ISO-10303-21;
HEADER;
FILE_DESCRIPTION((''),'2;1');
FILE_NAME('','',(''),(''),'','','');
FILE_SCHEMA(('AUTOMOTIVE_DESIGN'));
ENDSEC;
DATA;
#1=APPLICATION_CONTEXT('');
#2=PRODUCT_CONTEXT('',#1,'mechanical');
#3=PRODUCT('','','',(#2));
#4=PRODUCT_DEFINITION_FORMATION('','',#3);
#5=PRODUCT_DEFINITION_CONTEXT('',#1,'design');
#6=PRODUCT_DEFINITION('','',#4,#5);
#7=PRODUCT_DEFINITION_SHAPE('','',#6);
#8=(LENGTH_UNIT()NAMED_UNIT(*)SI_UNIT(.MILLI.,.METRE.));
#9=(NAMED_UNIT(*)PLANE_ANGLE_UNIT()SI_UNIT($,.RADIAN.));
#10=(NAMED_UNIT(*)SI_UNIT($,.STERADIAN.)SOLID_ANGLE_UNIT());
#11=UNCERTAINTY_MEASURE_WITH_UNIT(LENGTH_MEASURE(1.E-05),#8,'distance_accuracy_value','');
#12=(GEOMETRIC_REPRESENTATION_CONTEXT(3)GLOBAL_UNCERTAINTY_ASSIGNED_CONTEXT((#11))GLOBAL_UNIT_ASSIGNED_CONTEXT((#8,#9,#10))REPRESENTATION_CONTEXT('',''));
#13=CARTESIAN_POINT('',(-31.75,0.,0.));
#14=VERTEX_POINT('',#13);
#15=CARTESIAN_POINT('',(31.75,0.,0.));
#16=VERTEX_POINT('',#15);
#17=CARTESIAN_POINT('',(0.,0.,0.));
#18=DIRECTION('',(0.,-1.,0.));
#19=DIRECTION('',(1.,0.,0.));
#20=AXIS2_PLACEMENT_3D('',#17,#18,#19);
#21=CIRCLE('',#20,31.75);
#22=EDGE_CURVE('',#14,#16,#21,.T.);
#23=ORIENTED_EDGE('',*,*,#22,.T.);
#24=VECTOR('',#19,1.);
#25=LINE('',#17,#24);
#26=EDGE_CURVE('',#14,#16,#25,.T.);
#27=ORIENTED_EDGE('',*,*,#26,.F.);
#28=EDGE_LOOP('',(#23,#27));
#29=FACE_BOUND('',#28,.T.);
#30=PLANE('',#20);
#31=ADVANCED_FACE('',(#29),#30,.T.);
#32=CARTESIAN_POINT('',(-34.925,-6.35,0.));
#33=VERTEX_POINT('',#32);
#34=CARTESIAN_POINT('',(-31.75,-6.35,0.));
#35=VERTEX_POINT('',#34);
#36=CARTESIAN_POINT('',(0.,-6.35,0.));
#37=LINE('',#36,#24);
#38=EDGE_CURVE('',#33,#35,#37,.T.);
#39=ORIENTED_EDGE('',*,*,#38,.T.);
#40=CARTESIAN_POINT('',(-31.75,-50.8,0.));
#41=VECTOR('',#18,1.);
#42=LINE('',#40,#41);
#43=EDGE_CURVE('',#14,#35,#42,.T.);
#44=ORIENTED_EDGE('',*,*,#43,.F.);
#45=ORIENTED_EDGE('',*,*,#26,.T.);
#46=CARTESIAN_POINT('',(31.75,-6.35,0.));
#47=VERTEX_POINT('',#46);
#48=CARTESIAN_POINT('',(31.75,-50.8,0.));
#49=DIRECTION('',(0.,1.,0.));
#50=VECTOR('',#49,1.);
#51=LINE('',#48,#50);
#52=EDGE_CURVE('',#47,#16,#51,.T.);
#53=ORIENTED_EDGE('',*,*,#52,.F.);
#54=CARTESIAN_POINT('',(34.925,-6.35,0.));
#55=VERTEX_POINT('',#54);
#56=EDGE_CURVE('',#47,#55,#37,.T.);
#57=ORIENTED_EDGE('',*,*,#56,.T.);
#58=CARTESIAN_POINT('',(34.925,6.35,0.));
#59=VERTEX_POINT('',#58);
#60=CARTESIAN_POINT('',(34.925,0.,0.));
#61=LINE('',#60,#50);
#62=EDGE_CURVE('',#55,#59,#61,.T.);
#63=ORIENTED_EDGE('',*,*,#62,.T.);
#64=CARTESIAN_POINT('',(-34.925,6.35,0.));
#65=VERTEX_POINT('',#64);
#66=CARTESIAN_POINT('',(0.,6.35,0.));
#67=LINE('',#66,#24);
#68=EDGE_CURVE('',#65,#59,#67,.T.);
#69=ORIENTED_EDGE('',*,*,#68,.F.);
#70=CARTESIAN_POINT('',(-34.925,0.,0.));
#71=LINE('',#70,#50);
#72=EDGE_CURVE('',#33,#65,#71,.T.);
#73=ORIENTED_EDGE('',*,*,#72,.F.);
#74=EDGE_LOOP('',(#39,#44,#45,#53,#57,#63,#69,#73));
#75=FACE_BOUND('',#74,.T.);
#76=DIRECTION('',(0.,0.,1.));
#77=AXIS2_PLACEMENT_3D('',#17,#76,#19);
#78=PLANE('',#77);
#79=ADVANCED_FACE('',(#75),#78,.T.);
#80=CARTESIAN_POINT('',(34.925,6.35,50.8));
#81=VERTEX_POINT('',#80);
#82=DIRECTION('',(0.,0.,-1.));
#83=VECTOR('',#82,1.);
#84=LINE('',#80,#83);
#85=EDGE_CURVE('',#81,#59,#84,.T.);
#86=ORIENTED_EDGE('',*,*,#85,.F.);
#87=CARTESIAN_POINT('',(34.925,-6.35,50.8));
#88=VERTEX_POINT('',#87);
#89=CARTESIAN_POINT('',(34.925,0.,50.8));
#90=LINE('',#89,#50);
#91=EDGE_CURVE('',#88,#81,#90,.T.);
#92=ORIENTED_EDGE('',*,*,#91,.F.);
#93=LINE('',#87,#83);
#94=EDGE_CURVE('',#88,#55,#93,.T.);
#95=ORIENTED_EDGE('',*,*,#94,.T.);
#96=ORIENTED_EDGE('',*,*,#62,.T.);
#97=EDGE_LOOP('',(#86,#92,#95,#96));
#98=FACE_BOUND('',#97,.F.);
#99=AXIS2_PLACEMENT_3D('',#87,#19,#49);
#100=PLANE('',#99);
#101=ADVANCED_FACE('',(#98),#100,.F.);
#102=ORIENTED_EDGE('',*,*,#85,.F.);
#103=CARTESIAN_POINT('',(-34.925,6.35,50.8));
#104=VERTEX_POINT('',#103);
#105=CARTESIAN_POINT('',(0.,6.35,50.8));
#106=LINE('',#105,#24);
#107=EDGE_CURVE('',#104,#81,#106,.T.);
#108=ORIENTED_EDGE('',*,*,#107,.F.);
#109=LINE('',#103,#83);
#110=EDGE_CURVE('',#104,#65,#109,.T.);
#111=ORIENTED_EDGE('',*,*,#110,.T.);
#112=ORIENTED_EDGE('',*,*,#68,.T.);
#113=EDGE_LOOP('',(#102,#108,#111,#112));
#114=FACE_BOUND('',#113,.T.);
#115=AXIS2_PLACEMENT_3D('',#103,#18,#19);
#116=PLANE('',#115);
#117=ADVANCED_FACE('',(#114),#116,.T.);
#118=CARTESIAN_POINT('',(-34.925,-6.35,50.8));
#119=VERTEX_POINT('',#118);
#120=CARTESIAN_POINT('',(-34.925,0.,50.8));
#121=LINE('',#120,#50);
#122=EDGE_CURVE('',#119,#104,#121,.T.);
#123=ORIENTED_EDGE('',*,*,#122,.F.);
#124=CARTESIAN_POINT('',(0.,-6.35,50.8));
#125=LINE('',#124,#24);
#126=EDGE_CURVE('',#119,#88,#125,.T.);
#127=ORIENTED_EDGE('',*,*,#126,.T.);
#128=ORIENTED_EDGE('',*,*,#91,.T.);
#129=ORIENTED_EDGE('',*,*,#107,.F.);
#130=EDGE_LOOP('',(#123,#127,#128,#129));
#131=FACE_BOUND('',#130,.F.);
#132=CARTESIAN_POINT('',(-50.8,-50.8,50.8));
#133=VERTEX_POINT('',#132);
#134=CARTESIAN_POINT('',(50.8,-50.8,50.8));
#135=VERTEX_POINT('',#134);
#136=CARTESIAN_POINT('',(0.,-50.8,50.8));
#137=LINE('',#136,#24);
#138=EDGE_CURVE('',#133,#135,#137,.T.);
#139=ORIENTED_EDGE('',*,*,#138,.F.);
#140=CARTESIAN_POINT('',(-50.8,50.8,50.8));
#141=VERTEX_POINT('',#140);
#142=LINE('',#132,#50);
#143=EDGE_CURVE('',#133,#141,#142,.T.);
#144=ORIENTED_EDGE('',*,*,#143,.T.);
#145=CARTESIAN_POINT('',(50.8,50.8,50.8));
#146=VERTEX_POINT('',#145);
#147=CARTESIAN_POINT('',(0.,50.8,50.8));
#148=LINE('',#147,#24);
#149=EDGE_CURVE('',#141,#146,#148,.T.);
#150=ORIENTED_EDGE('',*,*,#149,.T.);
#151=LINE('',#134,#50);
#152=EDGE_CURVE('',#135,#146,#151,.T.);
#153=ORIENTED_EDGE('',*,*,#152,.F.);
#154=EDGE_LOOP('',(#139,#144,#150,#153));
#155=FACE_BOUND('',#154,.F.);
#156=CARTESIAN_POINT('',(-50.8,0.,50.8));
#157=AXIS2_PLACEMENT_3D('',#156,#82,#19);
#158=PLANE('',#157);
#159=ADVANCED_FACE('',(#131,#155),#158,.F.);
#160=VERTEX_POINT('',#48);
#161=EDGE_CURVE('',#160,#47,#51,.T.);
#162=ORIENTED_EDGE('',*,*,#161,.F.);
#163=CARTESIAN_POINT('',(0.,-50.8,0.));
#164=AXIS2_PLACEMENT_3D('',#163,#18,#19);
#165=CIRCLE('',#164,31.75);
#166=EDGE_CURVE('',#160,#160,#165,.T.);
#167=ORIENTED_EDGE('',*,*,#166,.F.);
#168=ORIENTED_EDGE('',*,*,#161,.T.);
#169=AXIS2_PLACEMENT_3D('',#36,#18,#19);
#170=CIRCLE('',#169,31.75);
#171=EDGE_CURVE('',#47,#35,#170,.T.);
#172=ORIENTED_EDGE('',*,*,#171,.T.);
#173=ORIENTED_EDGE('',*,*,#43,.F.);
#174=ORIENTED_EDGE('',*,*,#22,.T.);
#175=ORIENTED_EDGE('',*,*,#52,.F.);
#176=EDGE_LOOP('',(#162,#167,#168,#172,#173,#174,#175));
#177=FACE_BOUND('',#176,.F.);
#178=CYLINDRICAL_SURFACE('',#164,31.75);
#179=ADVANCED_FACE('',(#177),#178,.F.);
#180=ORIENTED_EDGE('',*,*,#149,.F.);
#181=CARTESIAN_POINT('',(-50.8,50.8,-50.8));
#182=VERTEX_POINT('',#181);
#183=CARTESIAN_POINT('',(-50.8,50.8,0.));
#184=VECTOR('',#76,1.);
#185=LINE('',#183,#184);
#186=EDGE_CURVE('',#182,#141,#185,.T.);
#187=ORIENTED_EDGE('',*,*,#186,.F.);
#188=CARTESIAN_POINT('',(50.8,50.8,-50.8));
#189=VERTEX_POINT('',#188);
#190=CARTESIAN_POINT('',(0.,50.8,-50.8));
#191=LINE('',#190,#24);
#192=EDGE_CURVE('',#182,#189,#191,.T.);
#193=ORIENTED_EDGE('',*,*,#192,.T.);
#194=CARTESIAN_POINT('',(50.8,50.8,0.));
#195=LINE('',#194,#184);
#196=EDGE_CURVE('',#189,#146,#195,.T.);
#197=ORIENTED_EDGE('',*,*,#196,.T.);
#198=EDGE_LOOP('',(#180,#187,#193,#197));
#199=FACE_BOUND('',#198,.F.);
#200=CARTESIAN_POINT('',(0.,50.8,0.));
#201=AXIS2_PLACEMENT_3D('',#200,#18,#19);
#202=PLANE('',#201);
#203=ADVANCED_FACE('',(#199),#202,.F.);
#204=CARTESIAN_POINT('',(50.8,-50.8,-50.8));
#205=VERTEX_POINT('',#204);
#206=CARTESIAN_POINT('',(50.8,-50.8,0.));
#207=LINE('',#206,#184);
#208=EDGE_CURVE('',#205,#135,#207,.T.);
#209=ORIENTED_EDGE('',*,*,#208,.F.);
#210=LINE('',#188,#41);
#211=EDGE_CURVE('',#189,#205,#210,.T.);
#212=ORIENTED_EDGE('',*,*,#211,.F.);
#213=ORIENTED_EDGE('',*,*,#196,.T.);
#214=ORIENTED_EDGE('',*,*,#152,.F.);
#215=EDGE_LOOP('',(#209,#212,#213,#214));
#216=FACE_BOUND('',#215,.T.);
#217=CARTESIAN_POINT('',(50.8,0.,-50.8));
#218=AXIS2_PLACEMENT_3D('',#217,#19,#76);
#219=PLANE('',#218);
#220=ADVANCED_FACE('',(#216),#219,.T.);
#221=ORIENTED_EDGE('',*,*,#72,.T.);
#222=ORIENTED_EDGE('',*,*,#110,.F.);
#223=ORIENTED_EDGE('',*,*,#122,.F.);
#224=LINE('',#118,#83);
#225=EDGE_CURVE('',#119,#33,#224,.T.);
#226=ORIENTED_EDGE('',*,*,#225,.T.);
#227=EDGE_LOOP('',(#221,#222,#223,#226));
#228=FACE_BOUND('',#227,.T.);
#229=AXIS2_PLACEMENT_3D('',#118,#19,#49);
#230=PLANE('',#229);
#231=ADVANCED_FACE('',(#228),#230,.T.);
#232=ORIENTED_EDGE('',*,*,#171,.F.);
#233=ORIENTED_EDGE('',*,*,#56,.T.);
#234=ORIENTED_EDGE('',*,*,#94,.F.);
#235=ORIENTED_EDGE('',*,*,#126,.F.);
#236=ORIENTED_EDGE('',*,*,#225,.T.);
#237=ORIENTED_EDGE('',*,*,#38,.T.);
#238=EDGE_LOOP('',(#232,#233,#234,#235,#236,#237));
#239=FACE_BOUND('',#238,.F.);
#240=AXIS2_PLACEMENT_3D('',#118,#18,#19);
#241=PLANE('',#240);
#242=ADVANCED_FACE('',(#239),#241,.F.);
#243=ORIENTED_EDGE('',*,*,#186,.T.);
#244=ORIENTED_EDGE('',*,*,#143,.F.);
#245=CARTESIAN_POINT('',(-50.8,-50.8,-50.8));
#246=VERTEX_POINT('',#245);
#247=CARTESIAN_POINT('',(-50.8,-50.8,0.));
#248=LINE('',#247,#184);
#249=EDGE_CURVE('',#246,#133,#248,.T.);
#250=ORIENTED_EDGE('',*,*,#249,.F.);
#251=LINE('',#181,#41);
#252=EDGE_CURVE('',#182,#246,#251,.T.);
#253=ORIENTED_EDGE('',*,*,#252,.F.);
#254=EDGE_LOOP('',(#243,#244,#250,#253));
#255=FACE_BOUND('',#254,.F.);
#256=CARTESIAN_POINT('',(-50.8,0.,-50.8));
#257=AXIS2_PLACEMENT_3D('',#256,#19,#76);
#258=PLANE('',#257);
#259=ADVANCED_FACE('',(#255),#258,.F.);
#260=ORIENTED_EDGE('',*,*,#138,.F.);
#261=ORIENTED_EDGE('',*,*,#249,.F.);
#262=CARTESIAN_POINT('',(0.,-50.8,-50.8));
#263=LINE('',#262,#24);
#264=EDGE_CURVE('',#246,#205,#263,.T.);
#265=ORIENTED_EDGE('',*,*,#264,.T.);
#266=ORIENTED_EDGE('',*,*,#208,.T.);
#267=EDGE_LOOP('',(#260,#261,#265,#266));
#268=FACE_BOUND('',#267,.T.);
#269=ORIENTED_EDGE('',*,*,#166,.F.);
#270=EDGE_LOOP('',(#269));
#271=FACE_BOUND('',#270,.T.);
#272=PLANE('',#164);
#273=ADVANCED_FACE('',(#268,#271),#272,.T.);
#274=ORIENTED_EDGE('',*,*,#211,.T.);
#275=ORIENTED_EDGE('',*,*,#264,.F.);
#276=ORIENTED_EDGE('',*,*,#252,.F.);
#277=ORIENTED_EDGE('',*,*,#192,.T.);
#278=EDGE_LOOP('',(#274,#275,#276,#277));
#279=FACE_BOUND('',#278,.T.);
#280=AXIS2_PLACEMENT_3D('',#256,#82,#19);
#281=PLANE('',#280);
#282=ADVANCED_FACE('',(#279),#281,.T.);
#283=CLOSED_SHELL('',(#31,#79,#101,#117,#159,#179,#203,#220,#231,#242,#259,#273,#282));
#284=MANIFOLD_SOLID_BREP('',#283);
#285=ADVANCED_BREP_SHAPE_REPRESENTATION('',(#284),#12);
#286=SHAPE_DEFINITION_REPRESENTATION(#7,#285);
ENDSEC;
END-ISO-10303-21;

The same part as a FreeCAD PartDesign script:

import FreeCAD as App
import Part
import Sketcher

V = App.Vector
Q = App.Units.Quantity


def add_polygon(sketch, points):
    """Adds a closed chain of lines whose ends are joined by coincident constraints."""
    first, n = sketch.GeometryCount, len(points)
    for a, b in zip(points, points[1:] + points[:1]):
        sketch.addGeometry(Part.LineSegment(App.Vector(*a, 0), App.Vector(*b, 0)), False)
    for i in range(n):
        sketch.addConstraint(Sketcher.Constraint("Coincident", first + i, 2, first + (i + 1) % n, 1))

doc = App.newDocument("Part")
body = doc.addObject("PartDesign::Body", "Body")

# Sketch on XZ plane
sketch1 = body.newObject("Sketcher::SketchObject", "Sketch")
sketch1.AttachmentSupport = (doc.getObject("XZ_Plane"), [""])
sketch1.MapMode = "FlatFace"
add_polygon(sketch1, [(-51, 51), (-51, -51), (51, -51), (51, 51)])  # lines 0-3
sketch1.addConstraint(Sketcher.Constraint("Vertical", 0))
sketch1.addConstraint(Sketcher.Constraint("Horizontal", 1))
sketch1.addConstraint(Sketcher.Constraint("Vertical", 2))
sketch1.addConstraint(Sketcher.Constraint("Horizontal", 3))
sketch1.addConstraint(Sketcher.Constraint("Symmetric", 0, 2, 2, 2, -1, 1))
sketch1.addConstraint(Sketcher.Constraint("Equal", 3, 0))
sketch1.addConstraint(Sketcher.Constraint("DistanceX", 1, 1, 1, 2, Q("4 in")))
pad1 = body.newObject("PartDesign::Pad", "Pad")
pad1.Profile = sketch1
pad1.Length = Q("4 in")
pad1.Midplane = True

# Sketch on XY plane
sketch2 = body.newObject("Sketcher::SketchObject", "Sketch001")
sketch2.AttachmentSupport = (doc.getObject("XY_Plane"), [""])
sketch2.MapMode = "FlatFace"
sketch2.AttachmentOffset = App.Placement(V(0, 0, 2 * 25.4), App.Rotation())
add_polygon(sketch2, [(-35, 6), (-35, -6), (35, -6), (35, 6)])  # lines 0-3
sketch2.addConstraint(Sketcher.Constraint("Vertical", 0))
sketch2.addConstraint(Sketcher.Constraint("Horizontal", 1))
sketch2.addConstraint(Sketcher.Constraint("Vertical", 2))
sketch2.addConstraint(Sketcher.Constraint("Horizontal", 3))
sketch2.addConstraint(Sketcher.Constraint("Symmetric", 0, 2, 2, 2, -1, 1))
sketch2.addConstraint(Sketcher.Constraint("DistanceY", 0, 2, 0, 1, Q("0.5 in")))
sketch2.addConstraint(Sketcher.Constraint("DistanceX", 1, 1, 1, 2, Q("2.75 in")))
pocket1 = body.newObject("PartDesign::Pocket", "Pocket")
pocket1.Profile = sketch2
pocket1.Length = Q("2 in")

# Sketch on XZ plane
sketch3 = body.newObject("Sketcher::SketchObject", "Sketch002")
sketch3.AttachmentSupport = (doc.getObject("XZ_Plane"), [""])
sketch3.MapMode = "FlatFace"
sketch3.AttachmentOffset = App.Placement(V(0, 0, 2 * 25.4), App.Rotation())
sketch3.addGeometry(Part.Circle(V(0, 0, 0), V(0, 0, 1), 32), False)
sketch3.addConstraint(Sketcher.Constraint("Coincident", 0, 3, -1, 1))
sketch3.addConstraint(Sketcher.Constraint("Diameter", 0, Q("2.5 in")))
pocket2 = body.newObject("PartDesign::Pocket", "Pocket001")
pocket2.Profile = sketch3
pocket2.Length = Q("2 in")

doc.recompute()
